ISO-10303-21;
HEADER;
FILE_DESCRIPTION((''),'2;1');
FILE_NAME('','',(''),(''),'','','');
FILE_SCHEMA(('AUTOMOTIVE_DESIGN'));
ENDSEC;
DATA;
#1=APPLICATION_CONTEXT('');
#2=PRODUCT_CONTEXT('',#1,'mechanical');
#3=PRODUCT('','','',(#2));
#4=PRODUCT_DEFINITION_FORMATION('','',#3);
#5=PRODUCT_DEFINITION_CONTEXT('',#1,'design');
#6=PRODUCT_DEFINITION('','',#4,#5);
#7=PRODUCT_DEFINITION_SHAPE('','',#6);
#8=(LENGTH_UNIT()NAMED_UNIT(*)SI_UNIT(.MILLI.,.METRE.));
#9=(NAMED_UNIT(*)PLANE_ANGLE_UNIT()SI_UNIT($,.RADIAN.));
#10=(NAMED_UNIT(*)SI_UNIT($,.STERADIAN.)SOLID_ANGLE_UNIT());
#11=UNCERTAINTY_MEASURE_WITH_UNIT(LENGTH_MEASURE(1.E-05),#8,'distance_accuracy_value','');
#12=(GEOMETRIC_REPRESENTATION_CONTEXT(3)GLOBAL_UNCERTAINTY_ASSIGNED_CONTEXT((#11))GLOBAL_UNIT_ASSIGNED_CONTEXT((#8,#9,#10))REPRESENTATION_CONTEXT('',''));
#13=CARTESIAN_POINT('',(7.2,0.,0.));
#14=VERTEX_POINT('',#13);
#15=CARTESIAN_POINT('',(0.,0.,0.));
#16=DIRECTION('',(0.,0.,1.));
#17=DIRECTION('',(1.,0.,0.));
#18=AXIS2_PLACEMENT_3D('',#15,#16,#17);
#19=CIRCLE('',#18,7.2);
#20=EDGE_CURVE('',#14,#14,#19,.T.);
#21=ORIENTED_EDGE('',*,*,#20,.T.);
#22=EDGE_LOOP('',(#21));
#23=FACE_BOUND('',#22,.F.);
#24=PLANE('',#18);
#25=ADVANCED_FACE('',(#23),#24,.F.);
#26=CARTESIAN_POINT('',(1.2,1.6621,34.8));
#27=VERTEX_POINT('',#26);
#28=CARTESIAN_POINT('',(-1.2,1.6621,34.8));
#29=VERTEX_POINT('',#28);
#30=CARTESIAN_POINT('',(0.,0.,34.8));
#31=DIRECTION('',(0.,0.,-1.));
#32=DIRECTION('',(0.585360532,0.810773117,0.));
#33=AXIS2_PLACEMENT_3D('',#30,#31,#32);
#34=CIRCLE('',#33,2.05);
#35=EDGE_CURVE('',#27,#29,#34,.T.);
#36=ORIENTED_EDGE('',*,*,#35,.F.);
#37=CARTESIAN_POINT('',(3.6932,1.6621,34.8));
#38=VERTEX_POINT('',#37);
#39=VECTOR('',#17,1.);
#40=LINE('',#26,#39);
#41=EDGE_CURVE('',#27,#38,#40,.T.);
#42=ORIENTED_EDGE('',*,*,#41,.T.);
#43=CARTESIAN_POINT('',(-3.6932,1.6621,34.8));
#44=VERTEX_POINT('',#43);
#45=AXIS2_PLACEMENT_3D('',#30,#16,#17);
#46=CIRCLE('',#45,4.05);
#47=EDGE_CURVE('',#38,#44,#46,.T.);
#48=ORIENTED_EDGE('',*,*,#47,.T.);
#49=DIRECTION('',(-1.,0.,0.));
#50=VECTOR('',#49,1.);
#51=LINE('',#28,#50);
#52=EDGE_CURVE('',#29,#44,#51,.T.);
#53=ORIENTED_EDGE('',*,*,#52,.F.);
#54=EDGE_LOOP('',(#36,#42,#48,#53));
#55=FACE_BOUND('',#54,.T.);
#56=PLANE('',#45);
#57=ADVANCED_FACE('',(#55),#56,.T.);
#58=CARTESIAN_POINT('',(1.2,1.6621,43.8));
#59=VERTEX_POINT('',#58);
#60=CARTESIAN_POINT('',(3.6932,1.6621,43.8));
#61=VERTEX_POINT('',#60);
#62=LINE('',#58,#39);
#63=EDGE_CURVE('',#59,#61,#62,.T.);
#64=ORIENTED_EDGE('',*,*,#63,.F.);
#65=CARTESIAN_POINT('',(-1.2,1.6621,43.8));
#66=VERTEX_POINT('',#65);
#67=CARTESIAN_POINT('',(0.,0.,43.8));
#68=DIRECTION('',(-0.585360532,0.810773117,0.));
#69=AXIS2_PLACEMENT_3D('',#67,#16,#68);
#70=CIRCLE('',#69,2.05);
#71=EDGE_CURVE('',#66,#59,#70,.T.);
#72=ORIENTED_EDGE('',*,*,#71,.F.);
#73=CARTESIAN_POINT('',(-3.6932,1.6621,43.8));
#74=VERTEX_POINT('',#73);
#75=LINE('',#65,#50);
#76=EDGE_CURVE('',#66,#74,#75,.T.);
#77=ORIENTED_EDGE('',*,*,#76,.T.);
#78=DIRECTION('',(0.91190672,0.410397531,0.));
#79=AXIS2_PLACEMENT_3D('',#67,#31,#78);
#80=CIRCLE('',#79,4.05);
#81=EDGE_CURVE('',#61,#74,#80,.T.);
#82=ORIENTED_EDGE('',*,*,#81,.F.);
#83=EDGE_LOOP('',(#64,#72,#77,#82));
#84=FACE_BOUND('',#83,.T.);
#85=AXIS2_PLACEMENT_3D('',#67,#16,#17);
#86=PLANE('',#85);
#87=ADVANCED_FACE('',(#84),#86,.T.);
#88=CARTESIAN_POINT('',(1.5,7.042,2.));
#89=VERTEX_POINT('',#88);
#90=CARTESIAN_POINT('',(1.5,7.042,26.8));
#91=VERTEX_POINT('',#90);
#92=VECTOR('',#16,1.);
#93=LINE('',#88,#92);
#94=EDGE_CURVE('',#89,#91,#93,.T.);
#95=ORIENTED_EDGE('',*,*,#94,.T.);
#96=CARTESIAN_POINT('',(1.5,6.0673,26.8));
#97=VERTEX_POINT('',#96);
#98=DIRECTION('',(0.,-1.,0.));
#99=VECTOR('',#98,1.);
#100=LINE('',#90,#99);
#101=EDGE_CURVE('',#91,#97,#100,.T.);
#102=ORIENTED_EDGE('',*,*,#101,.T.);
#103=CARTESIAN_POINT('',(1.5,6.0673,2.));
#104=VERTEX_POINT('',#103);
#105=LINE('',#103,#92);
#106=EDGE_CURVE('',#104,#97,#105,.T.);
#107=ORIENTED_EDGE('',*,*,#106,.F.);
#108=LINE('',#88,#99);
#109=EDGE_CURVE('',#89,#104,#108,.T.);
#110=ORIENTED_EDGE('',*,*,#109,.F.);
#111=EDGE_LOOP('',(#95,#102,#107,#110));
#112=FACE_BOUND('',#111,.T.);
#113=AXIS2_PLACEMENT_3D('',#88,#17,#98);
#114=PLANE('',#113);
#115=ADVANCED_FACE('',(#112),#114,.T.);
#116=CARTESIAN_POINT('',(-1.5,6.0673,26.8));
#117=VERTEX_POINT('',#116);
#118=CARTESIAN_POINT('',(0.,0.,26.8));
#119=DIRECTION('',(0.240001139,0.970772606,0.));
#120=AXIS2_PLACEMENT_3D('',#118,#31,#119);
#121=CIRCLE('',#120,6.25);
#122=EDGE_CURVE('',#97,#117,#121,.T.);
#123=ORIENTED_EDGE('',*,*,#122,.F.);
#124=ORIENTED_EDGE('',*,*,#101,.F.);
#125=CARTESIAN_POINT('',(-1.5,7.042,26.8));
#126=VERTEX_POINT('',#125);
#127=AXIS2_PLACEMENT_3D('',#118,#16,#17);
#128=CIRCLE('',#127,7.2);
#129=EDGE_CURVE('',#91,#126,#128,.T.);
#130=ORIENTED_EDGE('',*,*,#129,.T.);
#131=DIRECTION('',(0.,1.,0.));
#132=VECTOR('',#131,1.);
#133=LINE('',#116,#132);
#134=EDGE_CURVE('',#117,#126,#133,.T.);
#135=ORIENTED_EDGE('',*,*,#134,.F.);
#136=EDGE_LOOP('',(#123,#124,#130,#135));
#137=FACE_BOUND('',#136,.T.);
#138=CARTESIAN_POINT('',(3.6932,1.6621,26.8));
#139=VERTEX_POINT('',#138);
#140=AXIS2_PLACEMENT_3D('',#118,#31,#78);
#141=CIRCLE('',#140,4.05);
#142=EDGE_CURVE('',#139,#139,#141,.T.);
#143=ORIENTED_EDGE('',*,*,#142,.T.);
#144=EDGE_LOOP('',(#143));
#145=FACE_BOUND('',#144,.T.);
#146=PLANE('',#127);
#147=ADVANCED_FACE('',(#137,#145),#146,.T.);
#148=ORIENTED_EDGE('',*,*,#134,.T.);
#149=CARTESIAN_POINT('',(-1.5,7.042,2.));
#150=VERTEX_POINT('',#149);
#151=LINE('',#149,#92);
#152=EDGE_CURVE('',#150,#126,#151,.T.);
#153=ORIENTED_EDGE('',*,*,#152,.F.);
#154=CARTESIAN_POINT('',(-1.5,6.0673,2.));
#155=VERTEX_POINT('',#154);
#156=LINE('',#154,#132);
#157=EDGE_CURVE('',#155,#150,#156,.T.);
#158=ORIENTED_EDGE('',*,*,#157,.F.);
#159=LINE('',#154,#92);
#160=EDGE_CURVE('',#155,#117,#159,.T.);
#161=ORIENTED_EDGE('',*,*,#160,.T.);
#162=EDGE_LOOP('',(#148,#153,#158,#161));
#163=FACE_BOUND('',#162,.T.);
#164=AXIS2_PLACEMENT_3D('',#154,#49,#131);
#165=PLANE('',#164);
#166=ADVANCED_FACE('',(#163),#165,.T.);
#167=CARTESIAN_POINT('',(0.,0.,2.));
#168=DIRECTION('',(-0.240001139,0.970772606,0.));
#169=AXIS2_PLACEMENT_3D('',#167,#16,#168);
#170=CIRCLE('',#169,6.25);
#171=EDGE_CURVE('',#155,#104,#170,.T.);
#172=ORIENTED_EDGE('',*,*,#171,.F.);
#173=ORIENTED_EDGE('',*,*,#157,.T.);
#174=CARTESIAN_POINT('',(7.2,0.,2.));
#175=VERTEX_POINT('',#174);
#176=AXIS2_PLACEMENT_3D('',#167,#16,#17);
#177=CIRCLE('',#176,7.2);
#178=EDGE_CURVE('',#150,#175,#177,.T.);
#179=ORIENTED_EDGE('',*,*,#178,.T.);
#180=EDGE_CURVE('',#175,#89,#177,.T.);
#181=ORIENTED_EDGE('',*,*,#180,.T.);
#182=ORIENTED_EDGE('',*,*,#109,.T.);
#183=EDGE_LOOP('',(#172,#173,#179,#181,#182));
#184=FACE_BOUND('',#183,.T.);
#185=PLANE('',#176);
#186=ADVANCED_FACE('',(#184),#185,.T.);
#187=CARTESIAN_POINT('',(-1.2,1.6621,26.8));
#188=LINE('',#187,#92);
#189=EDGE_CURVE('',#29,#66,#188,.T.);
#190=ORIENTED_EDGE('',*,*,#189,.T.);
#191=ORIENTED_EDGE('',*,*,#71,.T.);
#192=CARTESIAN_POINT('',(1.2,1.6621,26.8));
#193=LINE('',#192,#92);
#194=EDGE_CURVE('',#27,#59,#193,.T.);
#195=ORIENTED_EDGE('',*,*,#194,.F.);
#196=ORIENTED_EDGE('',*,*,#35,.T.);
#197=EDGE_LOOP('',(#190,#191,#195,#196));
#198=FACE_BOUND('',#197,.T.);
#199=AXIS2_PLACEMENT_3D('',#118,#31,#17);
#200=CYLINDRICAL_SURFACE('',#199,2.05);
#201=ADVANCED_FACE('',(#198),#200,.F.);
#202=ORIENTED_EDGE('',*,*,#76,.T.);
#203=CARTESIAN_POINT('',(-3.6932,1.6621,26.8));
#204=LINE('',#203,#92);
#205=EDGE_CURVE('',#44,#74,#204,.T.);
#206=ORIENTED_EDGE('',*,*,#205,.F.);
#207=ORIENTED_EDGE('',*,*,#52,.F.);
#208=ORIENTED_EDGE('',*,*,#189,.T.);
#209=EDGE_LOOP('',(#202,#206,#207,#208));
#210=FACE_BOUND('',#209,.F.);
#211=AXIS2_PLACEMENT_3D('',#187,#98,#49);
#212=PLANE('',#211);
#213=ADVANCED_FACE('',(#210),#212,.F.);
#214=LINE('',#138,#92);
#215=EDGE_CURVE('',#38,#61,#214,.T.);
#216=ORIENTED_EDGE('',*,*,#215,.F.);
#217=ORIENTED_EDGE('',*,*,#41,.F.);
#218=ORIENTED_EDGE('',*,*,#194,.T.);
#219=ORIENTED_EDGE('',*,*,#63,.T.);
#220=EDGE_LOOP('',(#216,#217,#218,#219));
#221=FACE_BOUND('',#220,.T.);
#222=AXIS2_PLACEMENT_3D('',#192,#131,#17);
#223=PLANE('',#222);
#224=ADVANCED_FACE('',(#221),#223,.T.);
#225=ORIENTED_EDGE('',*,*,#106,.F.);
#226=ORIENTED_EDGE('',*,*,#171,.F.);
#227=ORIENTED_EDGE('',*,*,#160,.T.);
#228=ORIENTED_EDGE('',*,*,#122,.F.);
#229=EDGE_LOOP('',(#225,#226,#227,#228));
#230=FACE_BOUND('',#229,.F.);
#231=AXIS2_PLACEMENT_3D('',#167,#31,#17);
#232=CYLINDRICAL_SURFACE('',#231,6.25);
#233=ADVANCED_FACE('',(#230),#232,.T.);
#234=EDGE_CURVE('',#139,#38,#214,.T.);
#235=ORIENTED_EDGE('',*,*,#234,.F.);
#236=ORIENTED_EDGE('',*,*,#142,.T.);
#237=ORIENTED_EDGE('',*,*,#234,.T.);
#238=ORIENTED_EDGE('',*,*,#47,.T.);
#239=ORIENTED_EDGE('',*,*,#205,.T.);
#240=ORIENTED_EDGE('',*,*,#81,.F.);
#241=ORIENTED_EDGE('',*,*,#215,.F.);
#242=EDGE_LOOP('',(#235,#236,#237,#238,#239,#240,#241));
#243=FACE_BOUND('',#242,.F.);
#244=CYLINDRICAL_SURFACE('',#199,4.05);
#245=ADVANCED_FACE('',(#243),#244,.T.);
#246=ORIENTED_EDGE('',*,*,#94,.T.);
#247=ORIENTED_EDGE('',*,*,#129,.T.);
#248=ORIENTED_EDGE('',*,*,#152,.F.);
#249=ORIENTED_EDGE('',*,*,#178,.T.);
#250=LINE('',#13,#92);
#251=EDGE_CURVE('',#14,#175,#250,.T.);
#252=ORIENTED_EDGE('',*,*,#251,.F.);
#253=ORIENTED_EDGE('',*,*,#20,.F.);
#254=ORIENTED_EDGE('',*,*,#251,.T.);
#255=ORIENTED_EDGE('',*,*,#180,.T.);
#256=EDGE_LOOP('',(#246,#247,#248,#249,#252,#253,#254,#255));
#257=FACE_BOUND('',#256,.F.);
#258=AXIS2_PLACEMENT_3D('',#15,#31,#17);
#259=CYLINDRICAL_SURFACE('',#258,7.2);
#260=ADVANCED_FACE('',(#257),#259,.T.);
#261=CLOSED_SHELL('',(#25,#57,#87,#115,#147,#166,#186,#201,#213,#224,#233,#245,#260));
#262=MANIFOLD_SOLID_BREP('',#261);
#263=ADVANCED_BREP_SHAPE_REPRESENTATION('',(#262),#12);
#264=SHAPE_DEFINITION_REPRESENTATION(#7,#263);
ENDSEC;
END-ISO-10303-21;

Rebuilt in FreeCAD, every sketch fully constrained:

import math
import FreeCAD as App
import Part
import Sketcher

V = App.Vector

doc = App.newDocument("Part")
body = doc.addObject("PartDesign::Body", "Body")

sketch1 = body.newObject("Sketcher::SketchObject", "Sketch")
sketch1.AttachmentSupport = (doc.getObject("XY_Plane"), [""])
sketch1.MapMode = "FlatFace"
sketch1.addGeometry(Part.Circle(V(0, 0, 0), V(0, 0, 1), 7), False)
sketch1.addConstraint(Sketcher.Constraint("Coincident", 0, 3, -1, 1))
sketch1.addConstraint(Sketcher.Constraint("Diameter", 0, 14.4))
pad1 = body.newObject("PartDesign::Pad", "Pad")
pad1.Profile = sketch1
pad1.Length = 2

sketch2 = body.newObject("Sketcher::SketchObject", "Sketch001")
sketch2.AttachmentSupport = (doc.getObject("XY_Plane"), [""])
sketch2.MapMode = "FlatFace"
sketch2.AttachmentOffset = App.Placement(V(0, 0, 2), App.Rotation())
sketch2.addGeometry(Part.ArcOfCircle(Part.Circle(V(0, 0, 0), V(0, 0, 1), 6.2), math.radians(104), math.radians(436)), False)
sketch2.addGeometry(Part.LineSegment(V(1.5, 6.1, 0), V(1.5, 7, 0)), False)
sketch2.addGeometry(Part.ArcOfCircle(Part.Circle(V(0, 0, 0), V(0, 0, 1), 7.2), math.radians(78), math.radians(102)), False)
sketch2.addGeometry(Part.LineSegment(V(-1.5, 7, 0), V(-1.5, 6.1, 0)), False)
sketch2.addConstraint(Sketcher.Constraint("Coincident", 0, 2, 1, 1))
sketch2.addConstraint(Sketcher.Constraint("Coincident", 1, 2, 2, 1))
sketch2.addConstraint(Sketcher.Constraint("Coincident", 2, 2, 3, 1))
sketch2.addConstraint(Sketcher.Constraint("Coincident", 3, 2, 0, 1))
sketch2.addConstraint(Sketcher.Constraint("Vertical", 1))
sketch2.addConstraint(Sketcher.Constraint("Vertical", 3))
sketch2.addConstraint(Sketcher.Constraint("Coincident", 0, 3, -1, 1))
sketch2.addConstraint(Sketcher.Constraint("Coincident", 2, 3, -1, 1))
sketch2.addConstraint(Sketcher.Constraint("Horizontal", 1, 2, 2, 2))
sketch2.addConstraint(Sketcher.Constraint("Radius", 0, 6.25))
sketch2.addConstraint(Sketcher.Constraint("DistanceX", -1, 1, 0, 2, 1.5))
sketch2.addConstraint(Sketcher.Constraint("Radius", 2, 7.2))
pad2 = body.newObject("PartDesign::Pad", "Pad001")
pad2.Profile = sketch2
pad2.Length = 24.8

sketch3 = body.newObject("Sketcher::SketchObject", "Sketch002")
sketch3.AttachmentSupport = (doc.getObject("XY_Plane"), [""])
sketch3.MapMode = "FlatFace"
sketch3.AttachmentOffset = App.Placement(V(0, 0, 26.8), App.Rotation())
sketch3.addGeometry(Part.ArcOfCircle(Part.Circle(V(0, 0, 0), V(0, 0, 1), 4), math.radians(156), math.radians(384)), False)
sketch3.addGeometry(Part.LineSegment(V(3.7, 1.7, 0), V(1.2, 1.7, 0)), False)
sketch3.addGeometry(Part.ArcOfCircle(Part.Circle(V(0, 0, 0), V(0, 0, 1), 2), math.radians(126), math.radians(414)), False)
sketch3.addGeometry(Part.LineSegment(V(-1.2, 1.7, 0), V(-3.7, 1.7, 0)), False)
sketch3.addConstraint(Sketcher.Constraint("Coincident", 0, 2, 1, 1))
sketch3.addConstraint(Sketcher.Constraint("Coincident", 1, 2, 2, 2))
sketch3.addConstraint(Sketcher.Constraint("Coincident", 2, 1, 3, 1))
sketch3.addConstraint(Sketcher.Constraint("Coincident", 3, 2, 0, 1))
sketch3.addConstraint(Sketcher.Constraint("Horizontal", 1))
sketch3.addConstraint(Sketcher.Constraint("Horizontal", 3))
sketch3.addConstraint(Sketcher.Constraint("Coincident", 0, 3, -1, 1))
sketch3.addConstraint(Sketcher.Constraint("Coincident", 2, 3, -1, 1))
sketch3.addConstraint(Sketcher.Constraint("Horizontal", 1, 2, 2, 1))
sketch3.addConstraint(Sketcher.Constraint("Radius", 0, 4.05))
sketch3.addConstraint(Sketcher.Constraint("Radius", 2, 2.05))
sketch3.addConstraint(Sketcher.Constraint("DistanceX", 2, 1, 1, 2, 2.4))
pad3 = body.newObject("PartDesign::Pad", "Pad002")
pad3.Profile = sketch3
pad3.Length = 17

sketch4 = body.newObject("Sketcher::SketchObject", "Sketch003")
sketch4.AttachmentSupport = (doc.getObject("XY_Plane"), [""])
sketch4.MapMode = "FlatFace"
sketch4.AttachmentOffset = App.Placement(V(0, 0, 26.8), App.Rotation())
sketch4.addGeometry(Part.LineSegment(V(1.2, 1.7, 0), V(3.7, 1.7, 0)), False)
sketch4.addGeometry(Part.ArcOfCircle(Part.Circle(V(0, 0, 0), V(0, 0, 1), 4), math.radians(24), math.radians(156)), False)
sketch4.addGeometry(Part.LineSegment(V(-3.7, 1.7, 0), V(-1.2, 1.7, 0)), False)
sketch4.addGeometry(Part.ArcOfCircle(Part.Circle(V(0, 0, 0), V(0, 0, 1), 2), math.radians(126), math.radians(414)), False)
sketch4.addConstraint(Sketcher.Constraint("Coincident", 0, 2, 1, 1))
sketch4.addConstraint(Sketcher.Constraint("Coincident", 1, 2, 2, 1))
sketch4.addConstraint(Sketcher.Constraint("Coincident", 2, 2, 3, 1))
sketch4.addConstraint(Sketcher.Constraint("Coincident", 3, 2, 0, 1))
sketch4.addConstraint(Sketcher.Constraint("Horizontal", 0))
sketch4.addConstraint(Sketcher.Constraint("Horizontal", 2))
sketch4.addConstraint(Sketcher.Constraint("Coincident", 1, 3, -1, 1))
sketch4.addConstraint(Sketcher.Constraint("Coincident", 3, 3, -1, 1))
sketch4.addConstraint(Sketcher.Constraint("Horizontal", 0, 2, 1, 2))
sketch4.addConstraint(Sketcher.Constraint("Radius", 1, 4.05))
sketch4.addConstraint(Sketcher.Constraint("Radius", 3, 2.05))
sketch4.addConstraint(Sketcher.Constraint("DistanceX", 2, 2, 3, 2, 2.4))
pad4 = body.newObject("PartDesign::Pad", "Pad003")
pad4.Profile = sketch4
pad4.Length = 8

doc.recompute()
